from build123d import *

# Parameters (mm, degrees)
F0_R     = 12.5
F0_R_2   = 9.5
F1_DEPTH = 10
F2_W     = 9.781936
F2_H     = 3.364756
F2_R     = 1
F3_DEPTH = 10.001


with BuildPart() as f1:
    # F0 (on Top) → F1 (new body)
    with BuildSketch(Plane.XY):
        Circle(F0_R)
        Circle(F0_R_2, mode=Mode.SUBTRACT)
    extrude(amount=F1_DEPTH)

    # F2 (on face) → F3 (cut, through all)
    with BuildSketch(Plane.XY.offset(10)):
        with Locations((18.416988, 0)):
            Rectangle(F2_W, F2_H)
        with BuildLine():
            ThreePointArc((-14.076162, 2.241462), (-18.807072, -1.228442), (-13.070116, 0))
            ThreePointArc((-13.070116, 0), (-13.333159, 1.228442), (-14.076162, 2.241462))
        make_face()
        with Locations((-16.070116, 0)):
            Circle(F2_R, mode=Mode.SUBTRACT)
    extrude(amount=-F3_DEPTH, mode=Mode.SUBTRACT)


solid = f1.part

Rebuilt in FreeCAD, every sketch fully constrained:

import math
import FreeCAD as App
import Part
import Sketcher

V = App.Vector
Q = App.Units.Quantity


def add_polygon(sketch, points):
    """Adds a closed chain of lines whose ends are joined by coincident constraints."""
    first, n = sketch.GeometryCount, len(points)
    for a, b in zip(points, points[1:] + points[:1]):
        sketch.addGeometry(Part.LineSegment(App.Vector(*a, 0), App.Vector(*b, 0)), False)
    for i in range(n):
        sketch.addConstraint(Sketcher.Constraint("Coincident", first + i, 2, first + (i + 1) % n, 1))

doc = App.newDocument("Part")
body = doc.addObject("PartDesign::Body", "Body")

# Sketch on XY plane
sketch1 = body.newObject("Sketcher::SketchObject", "Sketch")
sketch1.AttachmentSupport = (doc.getObject("XY_Plane"), [""])
sketch1.MapMode = "FlatFace"
sketch1.addGeometry([
    Part.Circle(V(0, 0, 0), V(0, 0, 1), 12),
    Part.Circle(V(0, 0, 0), V(0, 0, 1), 10),
], False)
sketch1.addConstraint([
    Sketcher.Constraint("Coincident", 0, 3, -1, 1),
    Sketcher.Constraint("Coincident", 1, 3, -1, 1),
    Sketcher.Constraint("Diameter", 0, Q("25 mm")),
    Sketcher.Constraint("Diameter", 1, Q("19 mm")),
])
pad1 = body.newObject("PartDesign::Pad", "Pad")
pad1.Profile = sketch1
pad1.Length = 10

# Sketch on XY plane
sketch2 = body.newObject("Sketcher::SketchObject", "Sketch001")
sketch2.AttachmentSupport = (doc.getObject("XY_Plane"), [""])
sketch2.MapMode = "FlatFace"
sketch2.AttachmentOffset = App.Placement(V(0, 0, 10), App.Rotation())
add_polygon(sketch2, [(13.5, 1.7), (13.5, -1.7), (23.3, -1.7), (23.3, 1.7)])  # lines 0-3
sketch2.addGeometry(Part.ArcOfCircle(Part.Circle(V(-16.1, 0, 0), V(0, 0, 1), 3), math.radians(48), math.radians(360)), False)  # 4
sketch2.addGeometry(Part.ArcOfCircle(Part.Circle(V(-16.1, 0, 0), V(0, 0, 1), 3), math.radians(0), math.radians(48)), False)  # 5
sketch2.addGeometry(Part.Circle(V(-16.1, 0, 0), V(0, 0, 1), 1), False)  # 6
sketch2.addConstraint([
    Sketcher.Constraint("Tangent", 4, 1, 5, 2),
    Sketcher.Constraint("Coincident", 5, 1, 4, 2),
    Sketcher.Constraint("Vertical", 0),
    Sketcher.Constraint("Horizontal", 1),
    Sketcher.Constraint("Vertical", 2),
    Sketcher.Constraint("Horizontal", 3),
    Sketcher.Constraint("Coincident", 6, 3, 4, 3),
    Sketcher.Constraint("PointOnObject", 4, 3, -1),
    Sketcher.Constraint("PointOnObject", 5, 1, -1),
    Sketcher.Constraint("Diameter", 6, Q("2 mm")),
    Sketcher.Constraint("Radius", 4, Q("3 mm")),
    Sketcher.Constraint("DistanceX", 1, 1, 1, 2, Q("9.781936 mm")),
    Sketcher.Constraint("DistanceY", 0, 2, 0, 1, Q("3.364756 mm")),
    Sketcher.Constraint("DistanceX", -1, 1, 0, 2, Q("13.52602 mm")),
    Sketcher.Constraint("DistanceY", -1, 1, 4, 1, Q("2.241462 mm")),
    Sketcher.Constraint("DistanceY", 0, 2, 5, 3, Q("1.68238 mm")),
    Sketcher.Constraint("DistanceX", 5, 3, 1, 2, Q("39.37807 mm")),
])
pocket1 = body.newObject("PartDesign::Pocket", "Pocket")
pocket1.Profile = sketch2
pocket1.Type = "ThroughAll"

doc.recompute()
